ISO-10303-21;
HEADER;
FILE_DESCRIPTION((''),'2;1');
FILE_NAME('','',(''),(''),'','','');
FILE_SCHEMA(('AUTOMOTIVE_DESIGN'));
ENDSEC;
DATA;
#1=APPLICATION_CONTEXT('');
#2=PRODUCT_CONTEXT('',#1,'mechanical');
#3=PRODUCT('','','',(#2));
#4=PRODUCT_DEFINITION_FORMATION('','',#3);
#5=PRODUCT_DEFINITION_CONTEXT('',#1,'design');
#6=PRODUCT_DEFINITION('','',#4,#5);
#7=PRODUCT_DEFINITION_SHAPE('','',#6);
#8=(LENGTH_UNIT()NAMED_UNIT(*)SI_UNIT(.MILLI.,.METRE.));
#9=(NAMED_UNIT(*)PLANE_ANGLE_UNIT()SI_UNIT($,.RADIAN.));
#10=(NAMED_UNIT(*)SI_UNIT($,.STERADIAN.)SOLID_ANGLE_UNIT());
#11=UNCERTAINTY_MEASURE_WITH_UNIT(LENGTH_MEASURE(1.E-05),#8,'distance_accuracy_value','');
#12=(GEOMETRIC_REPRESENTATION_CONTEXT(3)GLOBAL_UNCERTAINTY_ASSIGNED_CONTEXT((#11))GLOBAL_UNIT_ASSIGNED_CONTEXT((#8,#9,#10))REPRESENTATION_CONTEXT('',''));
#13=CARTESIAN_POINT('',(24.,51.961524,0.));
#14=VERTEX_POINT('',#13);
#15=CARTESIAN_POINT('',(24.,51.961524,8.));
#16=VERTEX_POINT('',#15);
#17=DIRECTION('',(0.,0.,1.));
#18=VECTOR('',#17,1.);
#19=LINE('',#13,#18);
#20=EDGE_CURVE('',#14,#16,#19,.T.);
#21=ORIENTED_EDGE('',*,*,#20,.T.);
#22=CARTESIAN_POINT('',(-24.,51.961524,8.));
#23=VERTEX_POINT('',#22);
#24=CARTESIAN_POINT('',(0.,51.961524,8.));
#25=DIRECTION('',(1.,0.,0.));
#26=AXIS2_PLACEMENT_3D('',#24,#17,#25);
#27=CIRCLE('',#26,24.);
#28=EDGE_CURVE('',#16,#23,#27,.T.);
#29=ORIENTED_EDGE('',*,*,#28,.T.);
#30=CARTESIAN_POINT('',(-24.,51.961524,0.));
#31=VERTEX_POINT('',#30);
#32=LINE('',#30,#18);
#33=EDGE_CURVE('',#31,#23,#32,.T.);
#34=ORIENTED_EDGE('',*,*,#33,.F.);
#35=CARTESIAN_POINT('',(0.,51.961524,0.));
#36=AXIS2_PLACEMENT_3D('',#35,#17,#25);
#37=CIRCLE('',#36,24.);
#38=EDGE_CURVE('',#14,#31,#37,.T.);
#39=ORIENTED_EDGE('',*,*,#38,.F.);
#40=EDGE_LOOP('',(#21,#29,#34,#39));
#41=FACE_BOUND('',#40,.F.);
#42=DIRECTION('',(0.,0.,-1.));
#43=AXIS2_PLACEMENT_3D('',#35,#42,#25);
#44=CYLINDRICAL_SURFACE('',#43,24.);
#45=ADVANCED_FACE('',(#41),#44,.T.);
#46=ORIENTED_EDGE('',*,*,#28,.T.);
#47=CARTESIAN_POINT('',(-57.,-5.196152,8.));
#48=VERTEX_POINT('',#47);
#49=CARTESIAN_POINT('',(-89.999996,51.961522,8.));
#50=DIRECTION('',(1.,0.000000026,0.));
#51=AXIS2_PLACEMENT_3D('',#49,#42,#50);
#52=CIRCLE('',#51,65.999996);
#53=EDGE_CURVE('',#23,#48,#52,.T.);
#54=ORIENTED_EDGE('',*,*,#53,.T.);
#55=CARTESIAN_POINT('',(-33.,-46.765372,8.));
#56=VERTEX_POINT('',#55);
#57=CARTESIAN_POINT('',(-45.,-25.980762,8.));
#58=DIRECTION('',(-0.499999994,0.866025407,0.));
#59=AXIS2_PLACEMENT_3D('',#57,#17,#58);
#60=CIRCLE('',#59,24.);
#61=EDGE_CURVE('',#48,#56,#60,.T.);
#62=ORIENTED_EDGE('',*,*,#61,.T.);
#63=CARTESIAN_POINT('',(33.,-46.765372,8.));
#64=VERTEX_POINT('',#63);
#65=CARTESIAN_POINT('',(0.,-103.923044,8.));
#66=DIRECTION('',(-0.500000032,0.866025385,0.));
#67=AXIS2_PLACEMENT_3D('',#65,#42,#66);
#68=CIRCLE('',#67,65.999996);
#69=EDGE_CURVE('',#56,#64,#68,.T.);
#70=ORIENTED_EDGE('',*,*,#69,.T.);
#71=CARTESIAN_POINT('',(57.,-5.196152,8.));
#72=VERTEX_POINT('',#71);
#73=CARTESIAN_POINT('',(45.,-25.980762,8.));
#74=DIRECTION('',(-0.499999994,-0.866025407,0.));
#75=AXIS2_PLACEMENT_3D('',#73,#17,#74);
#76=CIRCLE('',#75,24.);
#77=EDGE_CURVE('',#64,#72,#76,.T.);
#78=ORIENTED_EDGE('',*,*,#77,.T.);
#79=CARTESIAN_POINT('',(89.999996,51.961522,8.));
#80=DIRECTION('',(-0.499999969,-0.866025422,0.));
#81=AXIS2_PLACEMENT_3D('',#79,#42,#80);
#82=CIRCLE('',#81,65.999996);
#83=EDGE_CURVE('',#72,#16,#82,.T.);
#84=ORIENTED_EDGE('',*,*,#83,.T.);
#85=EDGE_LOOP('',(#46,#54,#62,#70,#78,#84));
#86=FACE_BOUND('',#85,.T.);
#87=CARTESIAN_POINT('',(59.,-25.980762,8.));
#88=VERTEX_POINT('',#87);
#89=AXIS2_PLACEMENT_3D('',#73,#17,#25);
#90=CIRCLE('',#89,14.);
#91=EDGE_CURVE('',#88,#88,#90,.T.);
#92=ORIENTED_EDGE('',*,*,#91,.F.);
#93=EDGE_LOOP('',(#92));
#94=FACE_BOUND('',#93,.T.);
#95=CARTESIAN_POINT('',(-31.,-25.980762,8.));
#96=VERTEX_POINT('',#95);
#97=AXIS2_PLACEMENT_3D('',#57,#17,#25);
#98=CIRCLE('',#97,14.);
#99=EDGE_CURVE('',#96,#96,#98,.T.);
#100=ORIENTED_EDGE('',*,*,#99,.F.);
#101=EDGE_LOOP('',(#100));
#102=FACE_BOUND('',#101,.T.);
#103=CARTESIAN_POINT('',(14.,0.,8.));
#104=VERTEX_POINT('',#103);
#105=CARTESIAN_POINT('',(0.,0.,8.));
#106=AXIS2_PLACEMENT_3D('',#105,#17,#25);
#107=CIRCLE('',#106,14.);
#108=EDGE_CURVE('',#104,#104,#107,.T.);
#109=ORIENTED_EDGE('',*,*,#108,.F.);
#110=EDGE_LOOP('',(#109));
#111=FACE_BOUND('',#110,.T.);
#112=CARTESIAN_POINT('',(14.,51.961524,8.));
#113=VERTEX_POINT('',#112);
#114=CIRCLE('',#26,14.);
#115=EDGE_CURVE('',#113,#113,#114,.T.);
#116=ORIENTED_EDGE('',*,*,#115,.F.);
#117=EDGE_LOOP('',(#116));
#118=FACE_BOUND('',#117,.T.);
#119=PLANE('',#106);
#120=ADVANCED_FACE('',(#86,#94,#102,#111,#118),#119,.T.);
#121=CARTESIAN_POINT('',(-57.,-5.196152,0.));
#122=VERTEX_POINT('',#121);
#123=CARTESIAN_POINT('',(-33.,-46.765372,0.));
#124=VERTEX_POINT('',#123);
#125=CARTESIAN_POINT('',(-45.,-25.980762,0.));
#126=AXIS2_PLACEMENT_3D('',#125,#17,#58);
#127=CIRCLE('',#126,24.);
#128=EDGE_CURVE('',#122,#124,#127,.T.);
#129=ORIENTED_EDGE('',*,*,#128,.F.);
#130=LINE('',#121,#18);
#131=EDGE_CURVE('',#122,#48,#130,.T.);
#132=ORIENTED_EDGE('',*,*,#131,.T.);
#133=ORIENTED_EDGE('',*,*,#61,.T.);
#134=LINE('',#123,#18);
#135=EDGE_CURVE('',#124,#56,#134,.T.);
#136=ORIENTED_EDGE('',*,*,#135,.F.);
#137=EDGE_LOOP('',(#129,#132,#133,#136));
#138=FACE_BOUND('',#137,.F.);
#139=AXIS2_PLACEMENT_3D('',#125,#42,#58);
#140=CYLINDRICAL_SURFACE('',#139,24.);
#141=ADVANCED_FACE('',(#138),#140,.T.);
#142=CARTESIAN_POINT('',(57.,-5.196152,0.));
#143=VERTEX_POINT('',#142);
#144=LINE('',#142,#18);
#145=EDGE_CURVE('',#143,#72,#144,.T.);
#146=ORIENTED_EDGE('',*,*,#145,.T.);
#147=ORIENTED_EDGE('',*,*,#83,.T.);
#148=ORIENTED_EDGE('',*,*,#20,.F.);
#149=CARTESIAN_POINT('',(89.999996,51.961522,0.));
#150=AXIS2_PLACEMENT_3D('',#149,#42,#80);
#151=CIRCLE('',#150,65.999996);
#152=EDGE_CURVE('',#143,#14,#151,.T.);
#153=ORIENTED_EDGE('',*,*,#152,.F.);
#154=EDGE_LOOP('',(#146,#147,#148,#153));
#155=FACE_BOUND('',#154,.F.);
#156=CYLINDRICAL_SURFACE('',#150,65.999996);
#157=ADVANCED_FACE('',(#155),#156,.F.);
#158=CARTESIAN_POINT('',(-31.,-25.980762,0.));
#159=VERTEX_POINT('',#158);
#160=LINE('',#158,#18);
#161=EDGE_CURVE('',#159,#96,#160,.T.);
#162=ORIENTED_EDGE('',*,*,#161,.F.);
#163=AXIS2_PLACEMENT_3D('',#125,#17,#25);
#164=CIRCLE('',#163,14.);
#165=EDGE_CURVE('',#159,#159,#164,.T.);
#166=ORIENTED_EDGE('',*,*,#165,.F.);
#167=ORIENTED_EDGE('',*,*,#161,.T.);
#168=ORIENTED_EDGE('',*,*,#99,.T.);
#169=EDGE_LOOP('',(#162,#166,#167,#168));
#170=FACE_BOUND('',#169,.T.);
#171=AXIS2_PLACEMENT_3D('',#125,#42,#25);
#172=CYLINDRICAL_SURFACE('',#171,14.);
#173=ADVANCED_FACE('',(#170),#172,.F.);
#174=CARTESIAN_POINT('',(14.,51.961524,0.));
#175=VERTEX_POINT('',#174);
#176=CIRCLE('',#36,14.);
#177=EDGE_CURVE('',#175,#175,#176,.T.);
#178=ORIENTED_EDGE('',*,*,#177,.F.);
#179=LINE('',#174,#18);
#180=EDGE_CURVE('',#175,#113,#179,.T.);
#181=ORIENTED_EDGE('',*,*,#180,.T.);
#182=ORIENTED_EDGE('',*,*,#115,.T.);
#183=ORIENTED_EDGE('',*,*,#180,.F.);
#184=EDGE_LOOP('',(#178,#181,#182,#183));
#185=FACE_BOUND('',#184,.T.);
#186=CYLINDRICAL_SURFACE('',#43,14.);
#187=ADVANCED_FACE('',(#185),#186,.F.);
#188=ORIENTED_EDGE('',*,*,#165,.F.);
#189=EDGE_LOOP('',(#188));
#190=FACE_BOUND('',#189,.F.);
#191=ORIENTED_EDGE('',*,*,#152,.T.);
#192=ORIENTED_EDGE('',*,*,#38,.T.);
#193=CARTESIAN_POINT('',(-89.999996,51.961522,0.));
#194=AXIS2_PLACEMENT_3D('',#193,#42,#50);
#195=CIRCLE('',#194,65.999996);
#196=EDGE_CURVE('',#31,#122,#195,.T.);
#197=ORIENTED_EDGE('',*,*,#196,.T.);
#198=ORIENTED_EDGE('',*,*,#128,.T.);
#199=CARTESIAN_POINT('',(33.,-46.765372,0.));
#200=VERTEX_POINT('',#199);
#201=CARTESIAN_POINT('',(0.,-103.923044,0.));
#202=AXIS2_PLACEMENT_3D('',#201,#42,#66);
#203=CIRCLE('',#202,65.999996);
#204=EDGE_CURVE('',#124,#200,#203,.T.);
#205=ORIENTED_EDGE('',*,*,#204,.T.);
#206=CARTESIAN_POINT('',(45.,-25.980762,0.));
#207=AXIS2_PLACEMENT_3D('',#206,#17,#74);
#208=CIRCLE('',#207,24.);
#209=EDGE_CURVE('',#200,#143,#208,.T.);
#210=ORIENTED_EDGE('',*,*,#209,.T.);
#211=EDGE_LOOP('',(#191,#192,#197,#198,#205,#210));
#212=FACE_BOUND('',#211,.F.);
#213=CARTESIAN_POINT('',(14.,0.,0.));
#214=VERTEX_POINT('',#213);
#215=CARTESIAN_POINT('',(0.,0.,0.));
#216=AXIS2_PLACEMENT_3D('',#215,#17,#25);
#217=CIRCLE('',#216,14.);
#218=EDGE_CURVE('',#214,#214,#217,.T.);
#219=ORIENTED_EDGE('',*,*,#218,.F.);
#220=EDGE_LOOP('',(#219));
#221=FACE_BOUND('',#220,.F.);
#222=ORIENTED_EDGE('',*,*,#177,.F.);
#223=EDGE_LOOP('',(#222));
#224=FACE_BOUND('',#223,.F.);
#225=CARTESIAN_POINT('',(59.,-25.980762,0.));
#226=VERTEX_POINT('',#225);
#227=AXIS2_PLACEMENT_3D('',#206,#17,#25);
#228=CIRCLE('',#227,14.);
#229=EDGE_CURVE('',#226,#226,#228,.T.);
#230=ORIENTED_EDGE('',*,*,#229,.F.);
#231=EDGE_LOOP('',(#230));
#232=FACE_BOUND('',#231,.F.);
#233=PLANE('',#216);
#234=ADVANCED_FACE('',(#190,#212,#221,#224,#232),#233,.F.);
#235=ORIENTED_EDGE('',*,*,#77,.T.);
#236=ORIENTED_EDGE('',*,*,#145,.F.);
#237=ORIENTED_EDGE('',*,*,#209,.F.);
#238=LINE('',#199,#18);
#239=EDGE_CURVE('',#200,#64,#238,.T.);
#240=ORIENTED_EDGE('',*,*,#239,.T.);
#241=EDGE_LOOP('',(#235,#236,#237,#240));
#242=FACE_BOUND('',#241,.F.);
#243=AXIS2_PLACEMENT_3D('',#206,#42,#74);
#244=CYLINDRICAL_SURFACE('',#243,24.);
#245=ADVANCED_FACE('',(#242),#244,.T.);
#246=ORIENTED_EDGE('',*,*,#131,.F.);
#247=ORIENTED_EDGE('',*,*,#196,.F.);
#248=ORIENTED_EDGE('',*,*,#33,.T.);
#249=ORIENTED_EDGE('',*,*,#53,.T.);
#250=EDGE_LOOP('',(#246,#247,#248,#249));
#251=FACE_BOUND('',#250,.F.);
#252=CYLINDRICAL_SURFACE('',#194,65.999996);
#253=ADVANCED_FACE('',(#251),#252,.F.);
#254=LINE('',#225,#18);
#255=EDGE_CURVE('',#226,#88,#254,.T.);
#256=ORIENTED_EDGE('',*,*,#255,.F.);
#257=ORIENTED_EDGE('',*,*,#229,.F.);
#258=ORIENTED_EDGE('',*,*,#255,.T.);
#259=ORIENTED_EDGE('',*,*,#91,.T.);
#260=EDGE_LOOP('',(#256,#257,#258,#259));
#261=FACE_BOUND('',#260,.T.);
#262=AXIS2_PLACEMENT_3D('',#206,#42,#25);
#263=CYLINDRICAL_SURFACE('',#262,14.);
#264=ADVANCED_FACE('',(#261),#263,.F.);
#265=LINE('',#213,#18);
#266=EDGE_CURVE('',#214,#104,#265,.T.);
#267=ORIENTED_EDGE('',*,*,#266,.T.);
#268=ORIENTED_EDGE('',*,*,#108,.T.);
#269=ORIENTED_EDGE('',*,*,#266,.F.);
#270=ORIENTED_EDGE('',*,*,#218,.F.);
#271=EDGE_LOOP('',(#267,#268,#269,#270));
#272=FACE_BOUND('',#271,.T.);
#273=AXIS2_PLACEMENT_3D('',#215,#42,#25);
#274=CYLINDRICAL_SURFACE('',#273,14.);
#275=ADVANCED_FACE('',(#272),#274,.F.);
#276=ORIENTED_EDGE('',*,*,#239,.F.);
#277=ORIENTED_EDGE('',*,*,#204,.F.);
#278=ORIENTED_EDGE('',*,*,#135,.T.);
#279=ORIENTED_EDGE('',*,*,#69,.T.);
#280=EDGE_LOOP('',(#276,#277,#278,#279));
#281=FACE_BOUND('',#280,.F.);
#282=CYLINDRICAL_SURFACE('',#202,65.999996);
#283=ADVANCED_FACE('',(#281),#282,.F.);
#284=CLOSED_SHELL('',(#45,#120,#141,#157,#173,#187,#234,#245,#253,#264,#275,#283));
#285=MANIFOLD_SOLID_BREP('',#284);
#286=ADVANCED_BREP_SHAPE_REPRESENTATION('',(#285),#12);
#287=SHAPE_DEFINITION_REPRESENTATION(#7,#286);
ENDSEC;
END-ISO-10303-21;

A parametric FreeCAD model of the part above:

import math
import FreeCAD as App
import Part
import Sketcher

doc = App.newDocument("Part")
body = doc.addObject("PartDesign::Body", "Body")

# Sketch on XY plane
sketch1 = body.newObject("Sketcher::SketchObject", "Sketch")
sketch1.AttachmentSupport = (doc.getObject("XY_Plane"), [""])
sketch1.MapMode = "FlatFace"
sketch1.addGeometry([
    Part.ArcOfCircle(Part.Circle(App.Vector(89.999996, 51.961522, 0), App.Vector(0, 0, 1), 65.999996), math.radians(179.999999), math.radians(240.000002)),  # 0
    Part.ArcOfCircle(Part.Circle(App.Vector(0, 51.961524, 0), App.Vector(0, 0, 1), 24), math.radians(0), math.radians(180)),  # 1
    Part.ArcOfCircle(Part.Circle(App.Vector(-89.999996, 51.961522, 0), App.Vector(0, 0, 1), 65.999996), math.radians(-60.000002), math.radians(0.000001)),  # 2
    Part.ArcOfCircle(Part.Circle(App.Vector(-45, -25.980762, 0), App.Vector(0, 0, 1), 24), math.radians(120), math.radians(300)),  # 3
    Part.ArcOfCircle(Part.Circle(App.Vector(0, -103.923044, 0), App.Vector(0, 0, 1), 65.999996), math.radians(59.999998), math.radians(120.000002)),  # 4
    Part.ArcOfCircle(Part.Circle(App.Vector(45, -25.980762, 0), App.Vector(0, 0, 1), 24), math.radians(-120), math.radians(60)),  # 5
    Part.Circle(App.Vector(-45, -25.980762, 0), App.Vector(0, 0, 1), 14),  # 6
    Part.Circle(App.Vector(45, -25.980762, 0), App.Vector(0, 0, 1), 14),  # 7
    Part.Circle(App.Vector(0, 0, 0), App.Vector(0, 0, 1), 14),  # 8
    Part.Circle(App.Vector(0, 51.961524, 0), App.Vector(0, 0, 1), 14),  # 9
], False)
sketch1.addConstraint([
    Sketcher.Constraint("Tangent", 0, 1, 1, 1),
    Sketcher.Constraint("Tangent", 1, 2, 2, 2),
    Sketcher.Constraint("Tangent", 2, 1, 3, 1),
    Sketcher.Constraint("Tangent", 3, 2, 4, 2),
    Sketcher.Constraint("Tangent", 4, 1, 5, 1),
    Sketcher.Constraint("Tangent", 5, 2, 0, 2),
    Sketcher.Constraint("Coincident", 8, 3, -1, 1),
    Sketcher.Constraint("Coincident", 6, 3, 3, 3),
    Sketcher.Constraint("Coincident", 7, 3, 5, 3),
    Sketcher.Constraint("Coincident", 9, 3, 1, 3),
    Sketcher.Constraint("Equal", 0, 2),
    Sketcher.Constraint("Equal", 1, 3),
    Sketcher.Constraint("Equal", 2, 4),
    Sketcher.Constraint("Equal", 3, 5),
    Sketcher.Constraint("Equal", 6, 7),
    Sketcher.Constraint("Equal", 7, 8),
    Sketcher.Constraint("Equal", 8, 9),
    Sketcher.Constraint("Symmetric", 0, 3, 2, 3, -2),
    Sketcher.Constraint("Horizontal", 0, 3, 1, 3),
    Sketcher.Constraint("Horizontal", 3, 3, 5, 3),
    Sketcher.Constraint("Diameter", 6, 28.0),
    Sketcher.Constraint("Radius", 1, 24.0),
    Sketcher.Constraint("DistanceX", 3, 3, -1, 1, 45.0),
    Sketcher.Constraint("DistanceX", 3, 2, -1, 1, 33.0),
    Sketcher.Constraint("DistanceY", 3, 3, -1, 1, 25.980762),
])
pad1 = body.newObject("PartDesign::Pad", "Pad")
pad1.Profile = sketch1
pad1.Length = 8

doc.recompute()
